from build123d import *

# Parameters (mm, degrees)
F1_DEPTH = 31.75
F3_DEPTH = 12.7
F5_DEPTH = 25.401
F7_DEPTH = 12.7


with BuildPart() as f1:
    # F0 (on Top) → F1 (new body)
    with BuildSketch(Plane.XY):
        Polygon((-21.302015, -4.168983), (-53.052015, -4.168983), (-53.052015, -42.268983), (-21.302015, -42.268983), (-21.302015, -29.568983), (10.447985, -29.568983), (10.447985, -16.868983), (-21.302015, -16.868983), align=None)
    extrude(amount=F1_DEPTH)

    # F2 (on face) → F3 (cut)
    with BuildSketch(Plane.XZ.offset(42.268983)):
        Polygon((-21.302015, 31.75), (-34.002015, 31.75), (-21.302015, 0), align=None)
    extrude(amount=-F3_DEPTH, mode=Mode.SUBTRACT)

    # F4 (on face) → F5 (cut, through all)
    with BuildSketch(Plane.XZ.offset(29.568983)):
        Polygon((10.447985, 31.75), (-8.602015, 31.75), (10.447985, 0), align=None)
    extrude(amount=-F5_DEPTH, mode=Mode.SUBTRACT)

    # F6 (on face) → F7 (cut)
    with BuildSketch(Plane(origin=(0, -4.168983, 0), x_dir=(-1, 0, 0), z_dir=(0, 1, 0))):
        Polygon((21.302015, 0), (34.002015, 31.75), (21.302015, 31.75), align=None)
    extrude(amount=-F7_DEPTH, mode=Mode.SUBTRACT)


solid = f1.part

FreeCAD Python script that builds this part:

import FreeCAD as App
import Part
import Sketcher

V = App.Vector
Q = App.Units.Quantity

doc = App.newDocument("Part")
body = doc.addObject("PartDesign::Body", "Body")

# Sketch on XY plane
sketch1 = body.newObject("Sketcher::SketchObject", "Sketch")
sketch1.AttachmentSupport = (doc.getObject("XY_Plane"), [""])
sketch1.MapMode = "FlatFace"
sketch1.addGeometry(Part.LineSegment(V(-21, -4, 0), V(-53, -4, 0)), False)
sketch1.addGeometry(Part.LineSegment(V(-53, -4, 0), V(-53, -42, 0)), False)
sketch1.addGeometry(Part.LineSegment(V(-53, -42, 0), V(-21, -42, 0)), False)
sketch1.addGeometry(Part.LineSegment(V(-21, -42, 0), V(-21, -30, 0)), False)
sketch1.addGeometry(Part.LineSegment(V(-21, -30, 0), V(10, -30, 0)), False)
sketch1.addGeometry(Part.LineSegment(V(10, -30, 0), V(10, -17, 0)), False)
sketch1.addGeometry(Part.LineSegment(V(10, -17, 0), V(-21, -17, 0)), False)
sketch1.addGeometry(Part.LineSegment(V(-21, -17, 0), V(-21, -4, 0)), False)
sketch1.addConstraint(Sketcher.Constraint("Coincident", 0, 2, 1, 1))
sketch1.addConstraint(Sketcher.Constraint("Coincident", 1, 2, 2, 1))
sketch1.addConstraint(Sketcher.Constraint("Coincident", 2, 2, 3, 1))
sketch1.addConstraint(Sketcher.Constraint("Coincident", 3, 2, 4, 1))
sketch1.addConstraint(Sketcher.Constraint("Coincident", 4, 2, 5, 1))
sketch1.addConstraint(Sketcher.Constraint("Coincident", 5, 2, 6, 1))
sketch1.addConstraint(Sketcher.Constraint("Coincident", 6, 2, 7, 1))
sketch1.addConstraint(Sketcher.Constraint("Coincident", 7, 2, 0, 1))
sketch1.addConstraint(Sketcher.Constraint("Horizontal", 0))
sketch1.addConstraint(Sketcher.Constraint("Vertical", 1))
sketch1.addConstraint(Sketcher.Constraint("Horizontal", 2))
sketch1.addConstraint(Sketcher.Constraint("Vertical", 3))
sketch1.addConstraint(Sketcher.Constraint("Horizontal", 4))
sketch1.addConstraint(Sketcher.Constraint("Vertical", 5))
sketch1.addConstraint(Sketcher.Constraint("Horizontal", 6))
sketch1.addConstraint(Sketcher.Constraint("Vertical", 7))
sketch1.addConstraint(Sketcher.Constraint("Vertical", 3, 2, 6, 2))
sketch1.addConstraint(Sketcher.Constraint("Equal", 2, 4))
sketch1.addConstraint(Sketcher.Constraint("Equal", 3, 5))
sketch1.addConstraint(Sketcher.Constraint("Equal", 5, 7))
sketch1.addConstraint(Sketcher.Constraint("DistanceY", 1, 2, 1, 1, Q("1.5 in")))
sketch1.addConstraint(Sketcher.Constraint("DistanceX", 0, 2, 0, 1, Q("1.25 in")))
sketch1.addConstraint(Sketcher.Constraint("DistanceX", 0, 2, -1, 1, 53.052015))
sketch1.addConstraint(Sketcher.Constraint("DistanceY", 0, 2, -1, 1, 4.168983))
pad1 = body.newObject("PartDesign::Pad", "Pad")
pad1.Profile = sketch1
pad1.Length = Q("1.25 in")

# Sketch on XZ plane
sketch2 = body.newObject("Sketcher::SketchObject", "Sketch001")
sketch2.AttachmentSupport = (doc.getObject("XZ_Plane"), [""])
sketch2.MapMode = "FlatFace"
sketch2.AttachmentOffset = App.Placement(V(0, 0, 42.268983), App.Rotation())
sketch2.addGeometry(Part.LineSegment(V(-21, 32, 0), V(-34, 32, 0)), False)
sketch2.addGeometry(Part.LineSegment(V(-34, 32, 0), V(-21, 0, 0)), False)
sketch2.addGeometry(Part.LineSegment(V(-21, 0, 0), V(-21, 32, 0)), False)
sketch2.addConstraint(Sketcher.Constraint("Coincident", 0, 2, 1, 1))
sketch2.addConstraint(Sketcher.Constraint("Coincident", 1, 2, 2, 1))
sketch2.addConstraint(Sketcher.Constraint("Coincident", 2, 2, 0, 1))
sketch2.addConstraint(Sketcher.Constraint("Horizontal", 0))
sketch2.addConstraint(Sketcher.Constraint("Vertical", 2))
sketch2.addConstraint(Sketcher.Constraint("PointOnObject", 1, 2, -1))
sketch2.addConstraint(Sketcher.Constraint("DistanceX", 0, 2, 0, 1, Q("0.5 in")))
sketch2.addConstraint(Sketcher.Constraint("DistanceY", 2, 1, 2, 2, Q("1.25 in")))
sketch2.addConstraint(Sketcher.Constraint("DistanceX", 0, 2, -1, 1, 34.002015))
pocket1 = body.newObject("PartDesign::Pocket", "Pocket")
pocket1.Profile = sketch2
pocket1.Length = Q("0.5 in")

# Sketch on XZ plane
sketch3 = body.newObject("Sketcher::SketchObject", "Sketch002")
sketch3.AttachmentSupport = (doc.getObject("XZ_Plane"), [""])
sketch3.MapMode = "FlatFace"
sketch3.AttachmentOffset = App.Placement(V(0, 0, 29.568983), App.Rotation())
sketch3.addGeometry(Part.LineSegment(V(10, 32, 0), V(-9, 32, 0)), False)
sketch3.addGeometry(Part.LineSegment(V(-9, 32, 0), V(10, 0, 0)), False)
sketch3.addGeometry(Part.LineSegment(V(10, 0, 0), V(10, 32, 0)), False)
sketch3.addConstraint(Sketcher.Constraint("Coincident", 0, 2, 1, 1))
sketch3.addConstraint(Sketcher.Constraint("Coincident", 1, 2, 2, 1))
sketch3.addConstraint(Sketcher.Constraint("Coincident", 2, 2, 0, 1))
sketch3.addConstraint(Sketcher.Constraint("Horizontal", 0))
sketch3.addConstraint(Sketcher.Constraint("Vertical", 2))
sketch3.addConstraint(Sketcher.Constraint("PointOnObject", 1, 2, -1))
sketch3.addConstraint(Sketcher.Constraint("DistanceX", 0, 2, 0, 1, Q("0.75 in")))
sketch3.addConstraint(Sketcher.Constraint("DistanceY", 2, 1, 2, 2, Q("1.25 in")))
sketch3.addConstraint(Sketcher.Constraint("DistanceX", 0, 2, -1, 1, 8.602015))
pocket2 = body.newObject("PartDesign::Pocket", "Pocket001")
pocket2.Profile = sketch3
pocket2.Type = "ThroughAll"

# Sketch on XZ plane
sketch4 = body.newObject("Sketcher::SketchObject", "Sketch003")
sketch4.AttachmentSupport = (doc.getObject("XZ_Plane"), [""])
sketch4.MapMode = "FlatFace"
sketch4.AttachmentOffset = App.Placement(V(0, 0, 4.168983), App.Rotation())
sketch4.addGeometry(Part.LineSegment(V(-21, 0, 0), V(-34, 32, 0)), False)
sketch4.addGeometry(Part.LineSegment(V(-34, 32, 0), V(-21, 32, 0)), False)
sketch4.addGeometry(Part.LineSegment(V(-21, 32, 0), V(-21, 0, 0)), False)
sketch4.addConstraint(Sketcher.Constraint("Coincident", 0, 2, 1, 1))
sketch4.addConstraint(Sketcher.Constraint("Coincident", 1, 2, 2, 1))
sketch4.addConstraint(Sketcher.Constraint("Coincident", 2, 2, 0, 1))
sketch4.addConstraint(Sketcher.Constraint("Horizontal", 1))
sketch4.addConstraint(Sketcher.Constraint("Vertical", 2))
sketch4.addConstraint(Sketcher.Constraint("PointOnObject", 2, 2, -1))
sketch4.addConstraint(Sketcher.Constraint("DistanceX", 1, 1, 1, 2, Q("0.5 in")))
sketch4.addConstraint(Sketcher.Constraint("DistanceY", 2, 2, 2, 1, Q("1.25 in")))
sketch4.addConstraint(Sketcher.Constraint("DistanceX", 0, 2, -1, 1, 34.002015))
pocket3 = body.newObject("PartDesign::Pocket", "Pocket002")
pocket3.Profile = sketch4
pocket3.Length = Q("0.5 in")
pocket3.Reversed = True

doc.recompute()
